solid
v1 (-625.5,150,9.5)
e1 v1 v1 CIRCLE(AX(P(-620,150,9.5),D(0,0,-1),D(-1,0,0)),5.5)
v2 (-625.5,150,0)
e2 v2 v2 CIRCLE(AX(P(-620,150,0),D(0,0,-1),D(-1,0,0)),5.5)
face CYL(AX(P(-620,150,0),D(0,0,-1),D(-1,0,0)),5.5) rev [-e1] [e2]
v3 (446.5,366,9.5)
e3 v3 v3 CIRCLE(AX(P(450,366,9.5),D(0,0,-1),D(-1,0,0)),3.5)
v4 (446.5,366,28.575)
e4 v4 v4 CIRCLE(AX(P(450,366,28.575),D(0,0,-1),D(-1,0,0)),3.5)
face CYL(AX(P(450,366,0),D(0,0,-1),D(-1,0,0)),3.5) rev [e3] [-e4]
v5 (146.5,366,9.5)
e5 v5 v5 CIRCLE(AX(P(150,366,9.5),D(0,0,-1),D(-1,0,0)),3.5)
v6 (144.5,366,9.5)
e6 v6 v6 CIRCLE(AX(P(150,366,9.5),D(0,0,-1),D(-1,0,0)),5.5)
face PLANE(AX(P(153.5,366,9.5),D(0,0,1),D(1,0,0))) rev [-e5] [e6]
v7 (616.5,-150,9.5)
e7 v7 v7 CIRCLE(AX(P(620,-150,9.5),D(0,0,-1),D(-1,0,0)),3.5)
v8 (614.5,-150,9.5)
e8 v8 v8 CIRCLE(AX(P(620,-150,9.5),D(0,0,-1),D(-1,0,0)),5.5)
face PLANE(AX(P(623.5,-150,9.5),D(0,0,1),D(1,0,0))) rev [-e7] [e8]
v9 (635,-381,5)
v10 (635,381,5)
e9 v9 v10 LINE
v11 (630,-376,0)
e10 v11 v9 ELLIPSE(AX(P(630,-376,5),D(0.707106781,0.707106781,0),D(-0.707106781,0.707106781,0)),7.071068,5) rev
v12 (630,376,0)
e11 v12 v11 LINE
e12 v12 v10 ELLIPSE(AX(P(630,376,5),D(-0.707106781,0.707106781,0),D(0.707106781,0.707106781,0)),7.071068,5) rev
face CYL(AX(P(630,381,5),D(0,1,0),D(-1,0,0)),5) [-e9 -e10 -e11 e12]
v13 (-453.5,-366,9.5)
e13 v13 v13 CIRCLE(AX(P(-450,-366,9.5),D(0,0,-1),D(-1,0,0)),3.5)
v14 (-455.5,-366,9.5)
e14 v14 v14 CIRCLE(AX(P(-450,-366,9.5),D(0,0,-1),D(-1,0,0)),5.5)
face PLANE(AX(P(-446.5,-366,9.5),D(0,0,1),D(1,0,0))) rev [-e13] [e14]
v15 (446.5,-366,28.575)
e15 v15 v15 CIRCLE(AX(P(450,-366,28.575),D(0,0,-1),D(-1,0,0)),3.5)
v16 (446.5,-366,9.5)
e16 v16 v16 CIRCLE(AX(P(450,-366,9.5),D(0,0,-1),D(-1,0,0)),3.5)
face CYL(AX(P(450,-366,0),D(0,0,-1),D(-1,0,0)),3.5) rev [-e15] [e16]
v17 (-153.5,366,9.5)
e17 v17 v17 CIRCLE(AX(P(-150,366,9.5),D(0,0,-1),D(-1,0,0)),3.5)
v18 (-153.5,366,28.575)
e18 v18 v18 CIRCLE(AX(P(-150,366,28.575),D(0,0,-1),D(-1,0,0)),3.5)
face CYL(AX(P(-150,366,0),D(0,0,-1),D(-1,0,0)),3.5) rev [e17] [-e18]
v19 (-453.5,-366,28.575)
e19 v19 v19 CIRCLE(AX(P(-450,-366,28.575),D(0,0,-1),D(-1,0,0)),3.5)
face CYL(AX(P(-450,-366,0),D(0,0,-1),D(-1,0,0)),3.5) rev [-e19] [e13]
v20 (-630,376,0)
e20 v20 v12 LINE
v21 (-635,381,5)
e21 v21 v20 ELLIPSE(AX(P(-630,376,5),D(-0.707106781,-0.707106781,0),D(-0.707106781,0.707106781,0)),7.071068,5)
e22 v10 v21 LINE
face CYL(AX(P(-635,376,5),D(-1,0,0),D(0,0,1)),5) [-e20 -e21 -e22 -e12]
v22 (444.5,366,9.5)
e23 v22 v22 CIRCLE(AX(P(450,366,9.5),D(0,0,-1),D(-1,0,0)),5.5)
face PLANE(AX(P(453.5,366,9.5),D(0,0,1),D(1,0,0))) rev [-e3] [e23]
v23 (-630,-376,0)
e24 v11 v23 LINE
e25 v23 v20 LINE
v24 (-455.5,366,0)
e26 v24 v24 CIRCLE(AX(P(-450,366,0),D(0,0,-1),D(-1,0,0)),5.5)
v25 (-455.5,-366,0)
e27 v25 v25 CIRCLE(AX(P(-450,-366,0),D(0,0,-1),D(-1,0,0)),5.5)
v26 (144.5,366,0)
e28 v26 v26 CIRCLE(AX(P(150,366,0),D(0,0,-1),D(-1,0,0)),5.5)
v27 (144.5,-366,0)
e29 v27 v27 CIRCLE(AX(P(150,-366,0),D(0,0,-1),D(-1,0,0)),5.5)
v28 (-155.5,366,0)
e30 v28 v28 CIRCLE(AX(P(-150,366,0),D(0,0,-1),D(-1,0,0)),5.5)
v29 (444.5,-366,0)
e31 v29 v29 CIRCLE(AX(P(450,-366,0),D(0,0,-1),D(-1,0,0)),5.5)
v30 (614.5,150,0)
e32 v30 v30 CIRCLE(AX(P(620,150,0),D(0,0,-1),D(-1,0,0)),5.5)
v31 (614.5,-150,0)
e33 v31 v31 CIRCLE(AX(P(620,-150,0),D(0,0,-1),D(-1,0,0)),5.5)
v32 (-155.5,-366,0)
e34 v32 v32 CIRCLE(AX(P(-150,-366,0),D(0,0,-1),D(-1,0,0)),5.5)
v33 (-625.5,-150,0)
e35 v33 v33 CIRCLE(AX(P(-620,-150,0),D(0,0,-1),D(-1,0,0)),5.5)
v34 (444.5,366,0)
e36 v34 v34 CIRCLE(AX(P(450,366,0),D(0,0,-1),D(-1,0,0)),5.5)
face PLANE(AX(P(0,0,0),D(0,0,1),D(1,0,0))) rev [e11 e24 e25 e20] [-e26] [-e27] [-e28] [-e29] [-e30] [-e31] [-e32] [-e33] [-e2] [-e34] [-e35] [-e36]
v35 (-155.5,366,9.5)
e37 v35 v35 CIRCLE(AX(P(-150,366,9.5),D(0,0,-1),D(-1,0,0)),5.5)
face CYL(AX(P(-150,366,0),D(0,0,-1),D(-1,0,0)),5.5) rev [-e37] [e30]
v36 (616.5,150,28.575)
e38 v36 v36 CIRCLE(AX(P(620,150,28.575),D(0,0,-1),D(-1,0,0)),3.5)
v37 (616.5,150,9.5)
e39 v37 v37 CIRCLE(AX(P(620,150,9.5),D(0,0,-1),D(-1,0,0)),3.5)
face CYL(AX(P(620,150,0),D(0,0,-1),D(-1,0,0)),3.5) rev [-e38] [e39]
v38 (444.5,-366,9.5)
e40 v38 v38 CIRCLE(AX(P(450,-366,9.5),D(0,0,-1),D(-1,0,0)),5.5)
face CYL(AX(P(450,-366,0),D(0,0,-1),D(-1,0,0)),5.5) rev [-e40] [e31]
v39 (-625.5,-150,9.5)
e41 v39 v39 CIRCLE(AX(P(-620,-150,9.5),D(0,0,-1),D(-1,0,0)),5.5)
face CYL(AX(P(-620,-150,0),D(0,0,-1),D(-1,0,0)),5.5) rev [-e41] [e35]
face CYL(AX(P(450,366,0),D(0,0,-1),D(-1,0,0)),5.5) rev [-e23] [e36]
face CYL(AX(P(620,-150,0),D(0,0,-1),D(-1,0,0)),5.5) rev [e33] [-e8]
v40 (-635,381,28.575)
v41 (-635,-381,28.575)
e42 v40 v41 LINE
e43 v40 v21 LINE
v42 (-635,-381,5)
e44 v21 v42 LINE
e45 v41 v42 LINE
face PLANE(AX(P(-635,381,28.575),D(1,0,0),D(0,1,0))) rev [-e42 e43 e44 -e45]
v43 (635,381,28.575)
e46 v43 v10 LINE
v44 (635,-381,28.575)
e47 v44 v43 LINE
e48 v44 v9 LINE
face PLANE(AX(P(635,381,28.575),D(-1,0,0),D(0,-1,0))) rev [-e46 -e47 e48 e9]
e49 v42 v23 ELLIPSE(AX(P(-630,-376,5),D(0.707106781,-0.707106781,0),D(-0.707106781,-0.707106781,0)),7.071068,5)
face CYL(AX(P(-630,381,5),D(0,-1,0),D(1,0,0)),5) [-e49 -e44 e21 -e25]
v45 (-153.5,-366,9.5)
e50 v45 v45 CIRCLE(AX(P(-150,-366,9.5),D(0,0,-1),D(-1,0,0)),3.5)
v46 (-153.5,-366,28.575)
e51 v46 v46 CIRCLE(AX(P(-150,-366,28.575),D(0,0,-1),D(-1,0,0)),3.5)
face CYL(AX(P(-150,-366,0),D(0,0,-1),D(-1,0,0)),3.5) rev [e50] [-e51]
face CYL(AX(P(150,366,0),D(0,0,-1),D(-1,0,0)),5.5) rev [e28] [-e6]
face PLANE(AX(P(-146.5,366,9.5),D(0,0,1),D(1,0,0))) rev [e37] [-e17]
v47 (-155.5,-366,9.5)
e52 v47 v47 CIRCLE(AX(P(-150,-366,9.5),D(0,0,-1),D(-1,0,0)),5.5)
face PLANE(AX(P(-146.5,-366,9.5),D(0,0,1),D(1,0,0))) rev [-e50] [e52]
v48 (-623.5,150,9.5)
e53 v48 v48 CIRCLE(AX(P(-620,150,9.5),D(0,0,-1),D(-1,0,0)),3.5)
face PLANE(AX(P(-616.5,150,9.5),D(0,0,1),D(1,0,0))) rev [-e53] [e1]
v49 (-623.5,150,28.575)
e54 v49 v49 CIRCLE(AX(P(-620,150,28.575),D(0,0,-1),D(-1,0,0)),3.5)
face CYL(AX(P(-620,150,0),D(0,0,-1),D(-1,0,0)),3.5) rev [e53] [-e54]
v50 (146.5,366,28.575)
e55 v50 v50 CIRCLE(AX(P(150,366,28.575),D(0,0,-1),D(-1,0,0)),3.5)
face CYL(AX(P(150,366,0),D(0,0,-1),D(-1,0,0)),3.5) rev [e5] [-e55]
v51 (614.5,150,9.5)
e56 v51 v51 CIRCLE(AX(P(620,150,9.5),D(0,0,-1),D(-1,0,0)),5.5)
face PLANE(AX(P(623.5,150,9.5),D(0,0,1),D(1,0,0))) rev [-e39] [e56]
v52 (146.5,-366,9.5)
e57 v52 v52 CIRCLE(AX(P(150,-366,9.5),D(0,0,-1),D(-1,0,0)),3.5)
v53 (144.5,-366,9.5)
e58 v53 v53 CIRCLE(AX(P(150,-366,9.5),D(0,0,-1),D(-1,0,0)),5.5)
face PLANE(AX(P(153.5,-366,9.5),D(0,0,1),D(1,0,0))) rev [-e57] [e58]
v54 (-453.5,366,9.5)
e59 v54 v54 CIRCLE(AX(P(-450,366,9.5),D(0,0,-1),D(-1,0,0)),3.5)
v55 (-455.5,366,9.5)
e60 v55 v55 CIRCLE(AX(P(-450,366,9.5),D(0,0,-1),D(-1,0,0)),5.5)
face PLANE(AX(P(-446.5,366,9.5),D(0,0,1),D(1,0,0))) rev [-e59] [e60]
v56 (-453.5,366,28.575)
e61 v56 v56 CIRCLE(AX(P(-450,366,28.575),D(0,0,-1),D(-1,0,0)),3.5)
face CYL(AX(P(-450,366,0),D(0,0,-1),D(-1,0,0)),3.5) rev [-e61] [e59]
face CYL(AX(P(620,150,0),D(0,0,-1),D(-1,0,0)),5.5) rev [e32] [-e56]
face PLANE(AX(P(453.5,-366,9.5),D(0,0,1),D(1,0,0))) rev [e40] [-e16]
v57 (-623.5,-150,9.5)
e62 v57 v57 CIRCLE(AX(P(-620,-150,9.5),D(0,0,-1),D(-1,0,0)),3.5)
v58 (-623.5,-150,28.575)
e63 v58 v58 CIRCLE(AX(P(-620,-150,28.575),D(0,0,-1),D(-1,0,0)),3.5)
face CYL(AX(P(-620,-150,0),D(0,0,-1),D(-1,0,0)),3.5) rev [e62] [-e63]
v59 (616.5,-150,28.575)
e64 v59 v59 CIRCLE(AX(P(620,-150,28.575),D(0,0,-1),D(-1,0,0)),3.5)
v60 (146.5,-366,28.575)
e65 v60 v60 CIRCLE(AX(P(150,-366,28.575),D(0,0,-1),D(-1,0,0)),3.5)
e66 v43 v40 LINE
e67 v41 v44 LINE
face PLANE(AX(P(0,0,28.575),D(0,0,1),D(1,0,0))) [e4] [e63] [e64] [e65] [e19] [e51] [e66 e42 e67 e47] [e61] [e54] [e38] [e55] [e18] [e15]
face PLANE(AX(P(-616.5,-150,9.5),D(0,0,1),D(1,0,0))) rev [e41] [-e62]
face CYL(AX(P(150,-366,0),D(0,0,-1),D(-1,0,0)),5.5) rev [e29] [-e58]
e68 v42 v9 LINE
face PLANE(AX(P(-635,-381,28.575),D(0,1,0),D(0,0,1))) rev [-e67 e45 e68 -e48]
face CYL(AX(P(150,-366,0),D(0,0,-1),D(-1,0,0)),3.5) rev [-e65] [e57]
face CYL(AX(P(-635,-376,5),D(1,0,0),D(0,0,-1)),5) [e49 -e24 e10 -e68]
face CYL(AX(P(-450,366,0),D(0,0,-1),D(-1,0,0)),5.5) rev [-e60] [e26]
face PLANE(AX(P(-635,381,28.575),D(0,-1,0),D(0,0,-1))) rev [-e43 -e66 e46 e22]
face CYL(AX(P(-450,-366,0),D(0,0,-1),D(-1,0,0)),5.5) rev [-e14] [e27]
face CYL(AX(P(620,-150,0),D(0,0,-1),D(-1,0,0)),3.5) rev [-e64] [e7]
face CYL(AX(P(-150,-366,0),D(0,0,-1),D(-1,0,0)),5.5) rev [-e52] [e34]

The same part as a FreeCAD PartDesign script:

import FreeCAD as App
import Part
import Sketcher
from FreeCAD import Vector
Q = App.Units.Quantity


def edges_at(feature, points):
    """Names of the edges that pass closest to the given points."""
    edges = feature.Shape.Edges
    near = lambda p: min(range(len(edges)), key=lambda i: edges[i].distToShape(Part.Vertex(*p))[0])
    return sorted({f"Edge{near(p) + 1}" for p in points})


def add_polygon(sketch, points):
    """Adds a closed chain of lines whose ends are joined by coincident constraints."""
    first, n = sketch.GeometryCount, len(points)
    for a, b in zip(points, points[1:] + points[:1]):
        sketch.addGeometry(Part.LineSegment(App.Vector(*a, 0), App.Vector(*b, 0)), False)
    for i in range(n):
        sketch.addConstraint(Sketcher.Constraint("Coincident", first + i, 2, first + (i + 1) % n, 1))

doc = App.newDocument("Part")
body = doc.addObject("PartDesign::Body", "Body")

# Sketch on XY plane
sketch1 = body.newObject("Sketcher::SketchObject", "Sketch")
sketch1.AttachmentSupport = (doc.getObject("XY_Plane"), [""])
sketch1.MapMode = "FlatFace"
add_polygon(sketch1, [(-635, 381), (-635, -381), (635, -381), (635, 381)])  # lines 0-3
sketch1.addConstraint(Sketcher.Constraint("Vertical", 0))
sketch1.addConstraint(Sketcher.Constraint("Horizontal", 1))
sketch1.addConstraint(Sketcher.Constraint("Vertical", 2))
sketch1.addConstraint(Sketcher.Constraint("Horizontal", 3))
sketch1.addConstraint(Sketcher.Constraint("Symmetric", 0, 2, 2, 2, -1, 1))
sketch1.addConstraint(Sketcher.Constraint("DistanceX", 1, 1, 1, 2, Q("50 in")))
sketch1.addConstraint(Sketcher.Constraint("DistanceY", 0, 2, 0, 1, Q("30 in")))
pad1 = body.newObject("PartDesign::Pad", "Pad")
pad1.Profile = sketch1
pad1.Length = Q("1.125 in")

# Sketch on XY plane
sketch2 = body.newObject("Sketcher::SketchObject", "Sketch001")
sketch2.AttachmentSupport = (doc.getObject("XY_Plane"), [""])
sketch2.MapMode = "FlatFace"
sketch2.addGeometry(Part.Circle(Vector(-150, 366, 0), Vector(0, 0, 1), 3.5), False)
sketch2.addGeometry(Part.Circle(Vector(150, 366, 0), Vector(0, 0, 1), 3.5), False)
sketch2.addGeometry(Part.Circle(Vector(620, 150, 0), Vector(0, 0, 1), 3.5), False)
sketch2.addGeometry(Part.Circle(Vector(620, -150, 0), Vector(0, 0, 1), 3.5), False)
sketch2.addGeometry(Part.Circle(Vector(150, -366, 0), Vector(0, 0, 1), 3.5), False)
sketch2.addGeometry(Part.Circle(Vector(-150, -366, 0), Vector(0, 0, 1), 3.5), False)
sketch2.addGeometry(Part.Circle(Vector(-620, -150, 0), Vector(0, 0, 1), 3.5), False)
sketch2.addGeometry(Part.Circle(Vector(-620, 150, 0), Vector(0, 0, 1), 3.5), False)
sketch2.addGeometry(Part.Circle(Vector(-450, 366, 0), Vector(0, 0, 1), 3.5), False)
sketch2.addGeometry(Part.Circle(Vector(450, 366, 0), Vector(0, 0, 1), 3.5), False)
sketch2.addGeometry(Part.Circle(Vector(450, -366, 0), Vector(0, 0, 1), 3.5), False)
sketch2.addGeometry(Part.Circle(Vector(-450, -366, 0), Vector(0, 0, 1), 3.5), False)
sketch2.addConstraint(Sketcher.Constraint("Equal", 0, 1))
sketch2.addConstraint(Sketcher.Constraint("Equal", 1, 2))
sketch2.addConstraint(Sketcher.Constraint("Equal", 2, 3))
sketch2.addConstraint(Sketcher.Constraint("Equal", 3, 4))
sketch2.addConstraint(Sketcher.Constraint("Equal", 4, 5))
sketch2.addConstraint(Sketcher.Constraint("Equal", 5, 6))
sketch2.addConstraint(Sketcher.Constraint("Equal", 6, 7))
sketch2.addConstraint(Sketcher.Constraint("Equal", 7, 8))
sketch2.addConstraint(Sketcher.Constraint("Equal", 8, 9))
sketch2.addConstraint(Sketcher.Constraint("Equal", 9, 10))
sketch2.addConstraint(Sketcher.Constraint("Equal", 10, 11))
sketch2.addConstraint(Sketcher.Constraint("Symmetric", 0, 3, 4, 3, -1, 1))
sketch2.addConstraint(Sketcher.Constraint("Symmetric", 1, 3, 5, 3, -1, 1))
sketch2.addConstraint(Sketcher.Constraint("Symmetric", 2, 3, 6, 3, -1, 1))
sketch2.addConstraint(Sketcher.Constraint("Symmetric", 3, 3, 7, 3, -1, 1))
sketch2.addConstraint(Sketcher.Constraint("Symmetric", 8, 3, 10, 3, -1, 1))
sketch2.addConstraint(Sketcher.Constraint("Symmetric", 9, 3, 11, 3, -1, 1))
sketch2.addConstraint(Sketcher.Constraint("Symmetric", 0, 3, 1, 3, -2))
sketch2.addConstraint(Sketcher.Constraint("Symmetric", 3, 3, 6, 3, -2))
sketch2.addConstraint(Sketcher.Constraint("Symmetric", 8, 3, 9, 3, -2))
sketch2.addConstraint(Sketcher.Constraint("Horizontal", 1, 3, 8, 3))
sketch2.addConstraint(Sketcher.Constraint("Diameter", 0, 7.0))
sketch2.addConstraint(Sketcher.Constraint("DistanceX", 0, 3, -1, 1, 150.0))
sketch2.addConstraint(Sketcher.Constraint("DistanceY", -1, 1, 0, 3, 366.0))
sketch2.addConstraint(Sketcher.Constraint("DistanceX", -1, 1, 2, 3, 620.0))
sketch2.addConstraint(Sketcher.Constraint("DistanceY", -1, 1, 2, 3, 150.0))
sketch2.addConstraint(Sketcher.Constraint("DistanceX", 8, 3, -1, 1, 450.0))
doc.recompute()
hole = body.newObject("PartDesign::Hole", "Hole")
hole.Profile = sketch2
hole.ThreadType = "None"
hole.Diameter = 7
hole.DepthType = "ThroughAll"
hole.HoleCutType = "Counterbore"
hole.HoleCutDiameter = 11
hole.HoleCutDepth = 9.5
hole.Reversed = True
doc.recompute()

fillet = body.newObject("PartDesign::Fillet", "Fillet")
fillet.Base = (hole, edges_at(hole, [
    (0, -381, 0),
    (-635, 0, 0),
    (0, 381, 0),
    (635, 0, 0),
]))
fillet.Radius = 5

doc.recompute()
